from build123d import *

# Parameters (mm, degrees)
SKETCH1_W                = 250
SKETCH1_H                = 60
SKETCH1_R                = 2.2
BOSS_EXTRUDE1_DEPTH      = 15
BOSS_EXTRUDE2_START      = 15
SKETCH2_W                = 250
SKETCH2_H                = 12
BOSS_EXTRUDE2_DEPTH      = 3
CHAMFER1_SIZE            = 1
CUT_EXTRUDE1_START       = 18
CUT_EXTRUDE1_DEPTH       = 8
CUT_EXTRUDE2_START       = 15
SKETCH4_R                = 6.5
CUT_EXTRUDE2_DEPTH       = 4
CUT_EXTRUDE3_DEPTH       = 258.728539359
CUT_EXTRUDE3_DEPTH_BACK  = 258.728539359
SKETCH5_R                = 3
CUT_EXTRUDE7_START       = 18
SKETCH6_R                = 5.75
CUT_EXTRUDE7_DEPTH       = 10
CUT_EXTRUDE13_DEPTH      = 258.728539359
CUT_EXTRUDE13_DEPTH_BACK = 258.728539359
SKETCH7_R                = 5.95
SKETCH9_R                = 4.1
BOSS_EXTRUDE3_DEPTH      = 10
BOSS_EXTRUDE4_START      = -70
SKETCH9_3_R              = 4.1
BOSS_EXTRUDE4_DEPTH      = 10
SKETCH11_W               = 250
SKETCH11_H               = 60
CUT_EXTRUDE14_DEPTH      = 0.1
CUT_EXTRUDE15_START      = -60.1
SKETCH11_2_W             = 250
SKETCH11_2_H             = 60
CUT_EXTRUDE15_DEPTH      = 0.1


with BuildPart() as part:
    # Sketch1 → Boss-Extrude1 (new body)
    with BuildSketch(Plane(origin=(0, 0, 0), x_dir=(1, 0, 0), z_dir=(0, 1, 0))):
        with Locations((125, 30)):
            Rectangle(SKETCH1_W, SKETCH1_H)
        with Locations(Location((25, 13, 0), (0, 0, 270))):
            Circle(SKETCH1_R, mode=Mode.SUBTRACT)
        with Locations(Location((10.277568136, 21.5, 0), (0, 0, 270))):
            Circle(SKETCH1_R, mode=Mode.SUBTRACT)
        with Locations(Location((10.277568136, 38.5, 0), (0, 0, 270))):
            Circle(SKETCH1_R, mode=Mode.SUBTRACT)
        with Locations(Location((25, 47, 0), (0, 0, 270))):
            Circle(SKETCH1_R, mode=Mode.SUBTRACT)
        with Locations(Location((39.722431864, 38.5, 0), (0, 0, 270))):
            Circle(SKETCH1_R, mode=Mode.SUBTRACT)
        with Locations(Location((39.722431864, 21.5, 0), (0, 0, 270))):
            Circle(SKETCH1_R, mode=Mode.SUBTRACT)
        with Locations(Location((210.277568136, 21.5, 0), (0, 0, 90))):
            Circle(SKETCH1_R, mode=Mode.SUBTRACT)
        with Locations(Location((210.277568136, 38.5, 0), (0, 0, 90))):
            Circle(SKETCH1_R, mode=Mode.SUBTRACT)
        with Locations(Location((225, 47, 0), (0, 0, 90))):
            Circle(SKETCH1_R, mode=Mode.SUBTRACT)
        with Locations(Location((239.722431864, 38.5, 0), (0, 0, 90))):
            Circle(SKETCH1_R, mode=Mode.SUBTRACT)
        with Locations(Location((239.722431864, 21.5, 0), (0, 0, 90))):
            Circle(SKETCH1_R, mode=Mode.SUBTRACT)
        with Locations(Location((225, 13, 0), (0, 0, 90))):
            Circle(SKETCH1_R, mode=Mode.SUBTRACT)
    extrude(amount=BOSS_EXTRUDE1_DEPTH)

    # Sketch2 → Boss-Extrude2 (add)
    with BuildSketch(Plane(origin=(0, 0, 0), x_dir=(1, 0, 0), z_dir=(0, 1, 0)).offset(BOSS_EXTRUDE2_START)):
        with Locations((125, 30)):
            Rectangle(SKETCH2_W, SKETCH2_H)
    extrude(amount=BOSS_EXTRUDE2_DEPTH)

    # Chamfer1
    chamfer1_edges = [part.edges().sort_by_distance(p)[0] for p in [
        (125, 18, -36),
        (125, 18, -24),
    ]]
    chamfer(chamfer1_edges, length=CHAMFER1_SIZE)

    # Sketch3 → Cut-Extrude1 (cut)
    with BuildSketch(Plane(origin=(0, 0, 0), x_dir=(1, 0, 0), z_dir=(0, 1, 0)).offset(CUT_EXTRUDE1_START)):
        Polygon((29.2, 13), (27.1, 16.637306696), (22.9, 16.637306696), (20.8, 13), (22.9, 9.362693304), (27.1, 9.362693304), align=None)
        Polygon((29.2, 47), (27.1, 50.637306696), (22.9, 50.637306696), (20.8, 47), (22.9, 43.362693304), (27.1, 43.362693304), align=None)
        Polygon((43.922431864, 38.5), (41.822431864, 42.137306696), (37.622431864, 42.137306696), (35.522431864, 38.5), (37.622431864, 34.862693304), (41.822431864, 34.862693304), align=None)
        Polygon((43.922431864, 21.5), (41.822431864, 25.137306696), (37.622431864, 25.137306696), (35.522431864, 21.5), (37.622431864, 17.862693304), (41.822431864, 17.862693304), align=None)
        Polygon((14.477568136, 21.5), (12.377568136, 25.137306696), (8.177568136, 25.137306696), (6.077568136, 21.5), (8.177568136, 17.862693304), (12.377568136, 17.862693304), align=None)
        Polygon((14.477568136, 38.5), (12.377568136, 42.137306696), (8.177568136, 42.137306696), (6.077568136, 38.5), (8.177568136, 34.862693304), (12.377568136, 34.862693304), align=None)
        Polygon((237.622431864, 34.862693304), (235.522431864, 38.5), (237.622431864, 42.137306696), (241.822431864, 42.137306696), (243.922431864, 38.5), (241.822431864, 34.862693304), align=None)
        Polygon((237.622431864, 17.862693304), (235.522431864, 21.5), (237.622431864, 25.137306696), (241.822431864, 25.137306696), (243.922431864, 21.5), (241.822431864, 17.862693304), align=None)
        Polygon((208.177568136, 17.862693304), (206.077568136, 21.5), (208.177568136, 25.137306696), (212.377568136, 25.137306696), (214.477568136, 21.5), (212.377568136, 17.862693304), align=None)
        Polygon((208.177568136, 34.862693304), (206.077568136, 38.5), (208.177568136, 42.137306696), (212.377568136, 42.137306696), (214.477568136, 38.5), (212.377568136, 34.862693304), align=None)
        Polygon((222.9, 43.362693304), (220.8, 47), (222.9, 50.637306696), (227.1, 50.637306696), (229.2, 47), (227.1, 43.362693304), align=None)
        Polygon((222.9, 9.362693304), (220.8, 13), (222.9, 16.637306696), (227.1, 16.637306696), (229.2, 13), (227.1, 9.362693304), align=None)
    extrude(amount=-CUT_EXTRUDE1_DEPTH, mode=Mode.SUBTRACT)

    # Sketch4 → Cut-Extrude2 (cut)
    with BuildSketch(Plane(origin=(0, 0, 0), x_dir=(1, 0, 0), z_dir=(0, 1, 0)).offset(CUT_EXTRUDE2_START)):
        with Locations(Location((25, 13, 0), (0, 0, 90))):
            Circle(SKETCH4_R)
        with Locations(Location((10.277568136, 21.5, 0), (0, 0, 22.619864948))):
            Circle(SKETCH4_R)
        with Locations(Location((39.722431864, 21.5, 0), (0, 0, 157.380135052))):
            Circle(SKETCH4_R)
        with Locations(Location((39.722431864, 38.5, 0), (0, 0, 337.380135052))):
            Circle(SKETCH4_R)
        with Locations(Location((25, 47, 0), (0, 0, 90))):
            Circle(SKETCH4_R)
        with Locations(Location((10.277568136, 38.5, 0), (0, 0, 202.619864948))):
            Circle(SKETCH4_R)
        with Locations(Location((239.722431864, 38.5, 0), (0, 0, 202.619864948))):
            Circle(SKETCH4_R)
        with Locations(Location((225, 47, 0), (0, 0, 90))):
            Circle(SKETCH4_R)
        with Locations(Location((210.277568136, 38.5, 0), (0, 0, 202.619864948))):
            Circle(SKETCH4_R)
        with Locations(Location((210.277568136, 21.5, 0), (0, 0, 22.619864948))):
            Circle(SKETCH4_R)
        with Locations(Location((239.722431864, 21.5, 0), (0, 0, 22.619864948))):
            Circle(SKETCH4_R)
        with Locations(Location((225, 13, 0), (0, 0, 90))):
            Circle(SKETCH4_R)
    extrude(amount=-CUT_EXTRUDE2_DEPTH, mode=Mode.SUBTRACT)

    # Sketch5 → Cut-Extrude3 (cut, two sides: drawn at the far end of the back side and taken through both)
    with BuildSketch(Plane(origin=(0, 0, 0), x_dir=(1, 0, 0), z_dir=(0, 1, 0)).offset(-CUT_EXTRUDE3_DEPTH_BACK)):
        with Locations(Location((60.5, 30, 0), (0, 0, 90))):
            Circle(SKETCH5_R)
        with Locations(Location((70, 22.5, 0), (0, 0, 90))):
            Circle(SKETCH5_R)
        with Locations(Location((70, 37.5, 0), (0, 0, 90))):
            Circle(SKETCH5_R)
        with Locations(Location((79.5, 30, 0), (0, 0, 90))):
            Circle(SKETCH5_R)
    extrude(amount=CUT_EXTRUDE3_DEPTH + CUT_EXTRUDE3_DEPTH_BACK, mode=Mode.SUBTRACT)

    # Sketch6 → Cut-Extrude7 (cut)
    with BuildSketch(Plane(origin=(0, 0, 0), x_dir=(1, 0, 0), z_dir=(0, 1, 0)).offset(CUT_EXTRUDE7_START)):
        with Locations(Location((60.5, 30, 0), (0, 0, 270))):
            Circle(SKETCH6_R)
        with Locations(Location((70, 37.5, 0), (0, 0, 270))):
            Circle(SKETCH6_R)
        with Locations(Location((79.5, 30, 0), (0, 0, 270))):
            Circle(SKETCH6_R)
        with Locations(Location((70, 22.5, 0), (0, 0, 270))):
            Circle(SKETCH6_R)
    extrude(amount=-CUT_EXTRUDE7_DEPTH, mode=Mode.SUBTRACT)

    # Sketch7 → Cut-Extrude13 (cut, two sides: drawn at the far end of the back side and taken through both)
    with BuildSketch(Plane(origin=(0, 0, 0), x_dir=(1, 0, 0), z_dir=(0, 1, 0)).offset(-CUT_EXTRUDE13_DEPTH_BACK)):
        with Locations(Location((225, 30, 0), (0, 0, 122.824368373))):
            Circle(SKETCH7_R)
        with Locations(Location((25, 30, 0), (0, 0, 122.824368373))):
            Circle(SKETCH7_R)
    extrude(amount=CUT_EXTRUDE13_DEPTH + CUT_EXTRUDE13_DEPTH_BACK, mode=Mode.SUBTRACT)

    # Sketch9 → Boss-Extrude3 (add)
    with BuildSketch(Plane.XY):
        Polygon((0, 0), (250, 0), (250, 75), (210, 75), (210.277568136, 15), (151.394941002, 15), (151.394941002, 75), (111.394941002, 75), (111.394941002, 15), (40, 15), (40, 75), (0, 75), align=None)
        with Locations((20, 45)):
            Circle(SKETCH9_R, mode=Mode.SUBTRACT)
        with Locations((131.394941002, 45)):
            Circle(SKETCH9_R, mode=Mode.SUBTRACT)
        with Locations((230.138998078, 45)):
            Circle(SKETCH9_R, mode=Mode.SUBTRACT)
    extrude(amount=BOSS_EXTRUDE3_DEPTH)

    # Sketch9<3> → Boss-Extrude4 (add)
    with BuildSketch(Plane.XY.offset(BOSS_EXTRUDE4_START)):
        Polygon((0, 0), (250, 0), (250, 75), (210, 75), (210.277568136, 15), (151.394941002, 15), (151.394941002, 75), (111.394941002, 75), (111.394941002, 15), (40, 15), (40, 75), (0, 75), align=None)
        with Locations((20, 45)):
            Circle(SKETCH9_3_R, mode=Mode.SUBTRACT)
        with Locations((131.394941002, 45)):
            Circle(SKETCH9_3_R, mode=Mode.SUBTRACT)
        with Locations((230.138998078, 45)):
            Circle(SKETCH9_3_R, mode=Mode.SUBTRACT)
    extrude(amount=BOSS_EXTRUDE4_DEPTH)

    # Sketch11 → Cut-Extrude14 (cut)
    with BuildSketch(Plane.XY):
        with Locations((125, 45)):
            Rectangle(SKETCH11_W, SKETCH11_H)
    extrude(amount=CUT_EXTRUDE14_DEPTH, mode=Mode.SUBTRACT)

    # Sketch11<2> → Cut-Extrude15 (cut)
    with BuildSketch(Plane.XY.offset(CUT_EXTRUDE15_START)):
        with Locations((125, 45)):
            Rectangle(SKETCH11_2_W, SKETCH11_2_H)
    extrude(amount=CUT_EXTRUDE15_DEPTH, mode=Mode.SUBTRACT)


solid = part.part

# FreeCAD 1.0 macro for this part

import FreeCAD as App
import Part
import Sketcher

V = App.Vector
Q = App.Units.Quantity


def edges_at(feature, points):
    """Names of the edges that pass closest to the given points."""
    edges = feature.Shape.Edges
    near = lambda p: min(range(len(edges)), key=lambda i: edges[i].distToShape(Part.Vertex(*p))[0])
    return sorted({f"Edge{near(p) + 1}" for p in points})


def add_polygon(sketch, points):
    """Adds a closed chain of lines whose ends are joined by coincident constraints."""
    first, n = sketch.GeometryCount, len(points)
    for a, b in zip(points, points[1:] + points[:1]):
        sketch.addGeometry(Part.LineSegment(App.Vector(*a, 0), App.Vector(*b, 0)), False)
    for i in range(n):
        sketch.addConstraint(Sketcher.Constraint("Coincident", first + i, 2, first + (i + 1) % n, 1))

doc = App.newDocument("Part")
body = doc.addObject("PartDesign::Body", "Body")

# Sketch on XZ plane
sketch1 = body.newObject("Sketcher::SketchObject", "Sketch")
sketch1.AttachmentSupport = (doc.getObject("XZ_Plane"), [""])
sketch1.MapMode = "FlatFace"
add_polygon(sketch1, [(0, -60), (0, 0), (250, 0), (250, -60)])  # lines 0-3
sketch1.addGeometry(Part.Circle(V(25, -13, 0), V(0, 0, 1), 2.2), False)  # 4
sketch1.addGeometry(Part.Circle(V(10.3, -21.5, 0), V(0, 0, 1), 2.2), False)  # 5
sketch1.addGeometry(Part.Circle(V(39.7, -21.5, 0), V(0, 0, 1), 2.2), False)  # 6
sketch1.addGeometry(Part.Circle(V(225, -13, 0), V(0, 0, 1), 2.2), False)  # 7
sketch1.addGeometry(Part.Circle(V(210.3, -21.5, 0), V(0, 0, 1), 2.2), False)  # 8
sketch1.addGeometry(Part.Circle(V(239.7, -21.5, 0), V(0, 0, 1), 2.2), False)  # 9
sketch1.addGeometry(Part.Circle(V(10.3, -38.5, 0), V(0, 0, 1), 2.2), False)  # 10
sketch1.addGeometry(Part.Circle(V(39.7, -38.5, 0), V(0, 0, 1), 2.2), False)  # 11
sketch1.addGeometry(Part.Circle(V(25, -47, 0), V(0, 0, 1), 2.2), False)  # 12
sketch1.addGeometry(Part.Circle(V(210.3, -38.5, 0), V(0, 0, 1), 2.2), False)  # 13
sketch1.addGeometry(Part.Circle(V(239.7, -38.5, 0), V(0, 0, 1), 2.2), False)  # 14
sketch1.addGeometry(Part.Circle(V(225, -47, 0), V(0, 0, 1), 2.2), False)  # 15
sketch1.addConstraint([
    Sketcher.Constraint("Vertical", 0),
    Sketcher.Constraint("Horizontal", 1),
    Sketcher.Constraint("Vertical", 2),
    Sketcher.Constraint("Horizontal", 3),
    Sketcher.Constraint("Coincident", 0, 2, -1, 1),
    Sketcher.Constraint("Equal", 4, 5),
    Sketcher.Constraint("Equal", 5, 6),
    Sketcher.Constraint("Equal", 6, 7),
    Sketcher.Constraint("Equal", 7, 8),
    Sketcher.Constraint("Equal", 8, 9),
    Sketcher.Constraint("Equal", 9, 10),
    Sketcher.Constraint("Equal", 10, 11),
    Sketcher.Constraint("Equal", 11, 12),
    Sketcher.Constraint("Equal", 12, 13),
    Sketcher.Constraint("Equal", 13, 14),
    Sketcher.Constraint("Equal", 14, 15),
    Sketcher.Constraint("Horizontal", 5, 3, 6, 3),
    Sketcher.Constraint("Horizontal", 4, 3, 7, 3),
    Sketcher.Constraint("Horizontal", 6, 3, 8, 3),
    Sketcher.Constraint("Horizontal", 8, 3, 9, 3),
    Sketcher.Constraint("Horizontal", 10, 3, 11, 3),
    Sketcher.Constraint("Horizontal", 11, 3, 13, 3),
    Sketcher.Constraint("Horizontal", 13, 3, 14, 3),
    Sketcher.Constraint("Horizontal", 12, 3, 15, 3),
    Sketcher.Constraint("Vertical", 5, 3, 10, 3),
    Sketcher.Constraint("Vertical", 6, 3, 11, 3),
    Sketcher.Constraint("Vertical", 4, 3, 12, 3),
    Sketcher.Constraint("Vertical", 8, 3, 13, 3),
    Sketcher.Constraint("Vertical", 9, 3, 14, 3),
    Sketcher.Constraint("Vertical", 7, 3, 15, 3),
    Sketcher.Constraint("Diameter", 4, Q("4.4 mm")),
    Sketcher.Constraint("DistanceX", 1, 1, 1, 2, Q("250 mm")),
    Sketcher.Constraint("DistanceY", 0, 1, 0, 2, Q("60 mm")),
    Sketcher.Constraint("DistanceX", -1, 1, 4, 3, Q("25 mm")),
    Sketcher.Constraint("DistanceY", 4, 3, -1, 1, Q("13 mm")),
    Sketcher.Constraint("DistanceX", -1, 1, 7, 3, Q("225 mm")),
    Sketcher.Constraint("DistanceY", 12, 3, -1, 1, Q("47 mm")),
    Sketcher.Constraint("DistanceX", 5, 3, 8, 3, Q("200 mm")),
    Sketcher.Constraint("DistanceX", 6, 3, 9, 3, Q("200 mm")),
    Sketcher.Constraint("DistanceY", 10, 3, 5, 3, Q("17 mm")),
    Sketcher.Constraint("DistanceY", 5, 3, -1, 1, Q("21.5 mm")),
    Sketcher.Constraint("DistanceX", -1, 1, 5, 3, Q("10.277568 mm")),
    Sketcher.Constraint("DistanceX", -1, 1, 6, 3, Q("39.722432 mm")),
])
pad1 = body.newObject("PartDesign::Pad", "Pad")
pad1.Profile = sketch1
pad1.Length = 15
pad1.Reversed = True

# Sketch on XZ plane
sketch2 = body.newObject("Sketcher::SketchObject", "Sketch001")
sketch2.AttachmentSupport = (doc.getObject("XZ_Plane"), [""])
sketch2.MapMode = "FlatFace"
sketch2.AttachmentOffset = App.Placement(V(0, 0, -15), App.Rotation())
add_polygon(sketch2, [(0, -36), (0, -24), (250, -24), (250, -36)])  # lines 0-3
sketch2.addConstraint([
    Sketcher.Constraint("Vertical", 0),
    Sketcher.Constraint("Horizontal", 1),
    Sketcher.Constraint("Vertical", 2),
    Sketcher.Constraint("Horizontal", 3),
    Sketcher.Constraint("PointOnObject", 0, 2, -2),
    Sketcher.Constraint("DistanceX", 1, 1, 1, 2, Q("250 mm")),
    Sketcher.Constraint("DistanceY", 0, 1, 0, 2, Q("12 mm")),
    Sketcher.Constraint("DistanceY", 0, 2, -1, 1, Q("24 mm")),
])
pad2 = body.newObject("PartDesign::Pad", "Pad001")
pad2.Profile = sketch2
pad2.Length = 3
pad2.Reversed = True
doc.recompute()

chamfer = body.newObject("PartDesign::Chamfer", "Chamfer")
chamfer.Base = (pad2, edges_at(pad2, [(125, 18, -36), (125, 18, -24)]))
chamfer.Size = 1

# Sketch on XZ plane
sketch3 = body.newObject("Sketcher::SketchObject", "Sketch002")
sketch3.AttachmentSupport = (doc.getObject("XZ_Plane"), [""])
sketch3.MapMode = "FlatFace"
sketch3.AttachmentOffset = App.Placement(V(0, 0, -18), App.Rotation())
add_polygon(sketch3, [(29.2, -13), (27.1, -16.6), (22.9, -16.6), (20.8, -13), (22.9, -9.4), (27.1, -9.4)])  # lines 0-5
add_polygon(sketch3, [(29.2, -47), (27.1, -50.6), (22.9, -50.6), (20.8, -47), (22.9, -43.4), (27.1, -43.4)])  # lines 6-11
add_polygon(sketch3, [(43.9, -38.5), (41.8, -42.1), (37.6, -42.1), (35.5, -38.5), (37.6, -34.9), (41.8, -34.9)])  # lines 12-17
add_polygon(sketch3, [(43.9, -21.5), (41.8, -25.1), (37.6, -25.1), (35.5, -21.5), (37.6, -17.9), (41.8, -17.9)])  # lines 18-23
add_polygon(sketch3, [(14.5, -21.5), (12.4, -25.1), (8.2, -25.1), (6.1, -21.5), (8.2, -17.9), (12.4, -17.9)])  # lines 24-29
add_polygon(sketch3, [(14.5, -38.5), (12.4, -42.1), (8.2, -42.1), (6.1, -38.5), (8.2, -34.9), (12.4, -34.9)])  # lines 30-35
add_polygon(sketch3, [(235.5, -38.5), (237.6, -34.9), (241.8, -34.9), (243.9, -38.5), (241.8, -42.1), (237.6, -42.1)])  # lines 36-41
add_polygon(sketch3, [(235.5, -21.5), (237.6, -17.9), (241.8, -17.9), (243.9, -21.5), (241.8, -25.1), (237.6, -25.1)])  # lines 42-47
add_polygon(sketch3, [(206.1, -21.5), (208.2, -17.9), (212.4, -17.9), (214.5, -21.5), (212.4, -25.1), (208.2, -25.1)])  # lines 48-53
add_polygon(sketch3, [(206.1, -38.5), (208.2, -34.9), (212.4, -34.9), (214.5, -38.5), (212.4, -42.1), (208.2, -42.1)])  # lines 54-59
add_polygon(sketch3, [(220.8, -47), (222.9, -43.4), (227.1, -43.4), (229.2, -47), (227.1, -50.6), (222.9, -50.6)])  # lines 60-65
add_polygon(sketch3, [(220.8, -13), (222.9, -9.4), (227.1, -9.4), (229.2, -13), (227.1, -16.6), (222.9, -16.6)])  # lines 66-71
sketch3.addConstraint([
    Sketcher.Constraint("Horizontal", 1),
    Sketcher.Constraint("Horizontal", 4),
    Sketcher.Constraint("Horizontal", 7),
    Sketcher.Constraint("Horizontal", 10),
    Sketcher.Constraint("Horizontal", 13),
    Sketcher.Constraint("Horizontal", 16),
    Sketcher.Constraint("Horizontal", 19),
    Sketcher.Constraint("Horizontal", 22),
    Sketcher.Constraint("Horizontal", 25),
    Sketcher.Constraint("Horizontal", 28),
    Sketcher.Constraint("Horizontal", 31),
    Sketcher.Constraint("Horizontal", 34),
    Sketcher.Constraint("Horizontal", 37),
    Sketcher.Constraint("Horizontal", 40),
    Sketcher.Constraint("Horizontal", 43),
    Sketcher.Constraint("Horizontal", 46),
    Sketcher.Constraint("Horizontal", 49),
    Sketcher.Constraint("Horizontal", 52),
    Sketcher.Constraint("Horizontal", 55),
    Sketcher.Constraint("Horizontal", 58),
    Sketcher.Constraint("Horizontal", 61),
    Sketcher.Constraint("Horizontal", 64),
    Sketcher.Constraint("Horizontal", 67),
    Sketcher.Constraint("Horizontal", 70),
    Sketcher.Constraint("Parallel", 0, 3),
    Sketcher.Constraint("Parallel", 2, 5),
    Sketcher.Constraint("Parallel", 3, 6),
    Sketcher.Constraint("Parallel", 5, 8),
    Sketcher.Constraint("Parallel", 6, 9),
    Sketcher.Constraint("Parallel", 8, 11),
    Sketcher.Constraint("Parallel", 9, 12),
    Sketcher.Constraint("Parallel", 11, 14),
    Sketcher.Constraint("Parallel", 12, 15),
    Sketcher.Constraint("Parallel", 14, 17),
    Sketcher.Constraint("Parallel", 15, 18),
    Sketcher.Constraint("Parallel", 17, 20),
    Sketcher.Constraint("Parallel", 18, 21),
    Sketcher.Constraint("Parallel", 20, 23),
    Sketcher.Constraint("Parallel", 21, 24),
    Sketcher.Constraint("Parallel", 23, 26),
    Sketcher.Constraint("Parallel", 24, 27),
    Sketcher.Constraint("Parallel", 26, 29),
    Sketcher.Constraint("Parallel", 27, 30),
    Sketcher.Constraint("Parallel", 29, 32),
    Sketcher.Constraint("Parallel", 30, 33),
    Sketcher.Constraint("Parallel", 32, 35),
    Sketcher.Constraint("Parallel", 33, 36),
    Sketcher.Constraint("Parallel", 35, 38),
    Sketcher.Constraint("Parallel", 36, 39),
    Sketcher.Constraint("Parallel", 38, 41),
    Sketcher.Constraint("Parallel", 39, 42),
    Sketcher.Constraint("Parallel", 41, 44),
    Sketcher.Constraint("Parallel", 42, 45),
    Sketcher.Constraint("Parallel", 44, 47),
    Sketcher.Constraint("Parallel", 45, 48),
    Sketcher.Constraint("Parallel", 47, 50),
    Sketcher.Constraint("Parallel", 48, 51),
    Sketcher.Constraint("Parallel", 50, 53),
    Sketcher.Constraint("Parallel", 51, 54),
    Sketcher.Constraint("Parallel", 53, 56),
    Sketcher.Constraint("Parallel", 54, 57),
    Sketcher.Constraint("Parallel", 56, 59),
    Sketcher.Constraint("Parallel", 57, 60),
    Sketcher.Constraint("Parallel", 59, 62),
    Sketcher.Constraint("Parallel", 60, 63),
    Sketcher.Constraint("Parallel", 62, 65),
    Sketcher.Constraint("Parallel", 63, 66),
    Sketcher.Constraint("Parallel", 65, 68),
    Sketcher.Constraint("Parallel", 66, 69),
    Sketcher.Constraint("Parallel", 68, 71),
    Sketcher.Constraint("Horizontal", 2, 2, 5, 2),
    Sketcher.Constraint("Horizontal", 8, 2, 11, 2),
    Sketcher.Constraint("Horizontal", 14, 2, 17, 2),
    Sketcher.Constraint("Horizontal", 20, 2, 23, 2),
    Sketcher.Constraint("Horizontal", 19, 2, 24, 2),
    Sketcher.Constraint("Horizontal", 23, 2, 26, 2),
    Sketcher.Constraint("Horizontal", 22, 2, 27, 2),
    Sketcher.Constraint("Horizontal", 26, 2, 29, 2),
    Sketcher.Constraint("Horizontal", 13, 2, 30, 2),
    Sketcher.Constraint("Horizontal", 17, 2, 32, 2),
    Sketcher.Constraint("Horizontal", 16, 2, 33, 2),
    Sketcher.Constraint("Horizontal", 32, 2, 35, 2),
    Sketcher.Constraint("Horizontal", 34, 2, 36, 2),
    Sketcher.Constraint("Horizontal", 35, 2, 38, 2),
    Sketcher.Constraint("Horizontal", 31, 2, 39, 2),
    Sketcher.Constraint("Horizontal", 38, 2, 41, 2),
    Sketcher.Constraint("Horizontal", 28, 2, 42, 2),
    Sketcher.Constraint("Horizontal", 29, 2, 44, 2),
    Sketcher.Constraint("Horizontal", 25, 2, 45, 2),
    Sketcher.Constraint("Horizontal", 44, 2, 47, 2),
    Sketcher.Constraint("Horizontal", 43, 2, 48, 2),
    Sketcher.Constraint("Horizontal", 47, 2, 50, 2),
    Sketcher.Constraint("Horizontal", 46, 2, 51, 2),
    Sketcher.Constraint("Horizontal", 50, 2, 53, 2),
    Sketcher.Constraint("Horizontal", 37, 2, 54, 2),
    Sketcher.Constraint("Horizontal", 41, 2, 56, 2),
    Sketcher.Constraint("Horizontal", 40, 2, 57, 2),
    Sketcher.Constraint("Horizontal", 56, 2, 59, 2),
    Sketcher.Constraint("Horizontal", 10, 2, 60, 2),
    Sketcher.Constraint("Horizontal", 11, 2, 62, 2),
    Sketcher.Constraint("Horizontal", 7, 2, 63, 2),
    Sketcher.Constraint("Horizontal", 62, 2, 65, 2),
    Sketcher.Constraint("Horizontal", 4, 2, 66, 2),
    Sketcher.Constraint("Horizontal", 5, 2, 68, 2),
    Sketcher.Constraint("Horizontal", 1, 2, 69, 2),
    Sketcher.Constraint("Horizontal", 68, 2, 71, 2),
    Sketcher.Constraint("Vertical", 1, 2, 3, 2),
    Sketcher.Constraint("Vertical", 0, 2, 4, 2),
    Sketcher.Constraint("Vertical", 4, 2, 6, 2),
    Sketcher.Constraint("Vertical", 3, 2, 7, 2),
    Sketcher.Constraint("Vertical", 2, 2, 8, 2),
    Sketcher.Constraint("Vertical", 7, 2, 9, 2),
    Sketcher.Constraint("Vertical", 13, 2, 15, 2),
    Sketcher.Constraint("Vertical", 16, 2, 18, 2),
    Sketcher.Constraint("Vertical", 15, 2, 19, 2),
    Sketcher.Constraint("Vertical", 14, 2, 20, 2),
    Sketcher.Constraint("Vertical", 19, 2, 21, 2),
    Sketcher.Constraint("Vertical", 28, 2, 30, 2),
    Sketcher.Constraint("Vertical", 27, 2, 31, 2),
    Sketcher.Constraint("Vertical", 40, 2, 42, 2),
    Sketcher.Constraint("Vertical", 39, 2, 43, 2),
    Sketcher.Constraint("Vertical", 52, 2, 54, 2),
    Sketcher.Constraint("Vertical", 51, 2, 55, 2),
    Sketcher.Constraint("Vertical", 64, 2, 66, 2),
    Sketcher.Constraint("Vertical", 63, 2, 67, 2),
    Sketcher.Constraint("Equal", 10, 13),
    Sketcher.Constraint("Equal", 22, 25),
    Sketcher.Constraint("Equal", 34, 37),
    Sketcher.Constraint("Equal", 46, 49),
    Sketcher.Constraint("Equal", 58, 61),
    Sketcher.Constraint("Equal", 11, 12),
    Sketcher.Constraint("Angle", 0, Q("-120 deg")),
    Sketcher.Constraint("DistanceX", 1, 2, 1, 1, Q("4.2 mm")),
    Sketcher.Constraint("DistanceY", 2, 2, -1, 1, Q("13 mm")),
    Sketcher.Constraint("DistanceY", 8, 2, -1, 1, Q("47 mm")),
    Sketcher.Constraint("Distance", 0, Q("4.2 mm")),
    Sketcher.Constraint("DistanceX", -1, 1, 0, 2, Q("27.1 mm")),
    Sketcher.Constraint("DistanceY", 14, 2, -1, 1, Q("38.5 mm")),
    Sketcher.Constraint("DistanceY", 20, 2, -1, 1, Q("21.5 mm")),
    Sketcher.Constraint("DistanceX", -1, 1, 60, 2, Q("222.9 mm")),
    Sketcher.Constraint("DistanceX", -1, 1, 12, 2, Q("41.822432 mm")),
    Sketcher.Constraint("DistanceX", -1, 1, 24, 2, Q("12.377568 mm")),
    Sketcher.Constraint("DistanceX", -1, 1, 36, 2, Q("237.622432 mm")),
    Sketcher.Constraint("DistanceX", -1, 1, 48, 2, Q("208.177568 mm")),
])
pocket1 = body.newObject("PartDesign::Pocket", "Pocket")
pocket1.Profile = sketch3
pocket1.Length = 8
pocket1.Reversed = True

# Sketch on XZ plane
sketch4 = body.newObject("Sketcher::SketchObject", "Sketch003")
sketch4.AttachmentSupport = (doc.getObject("XZ_Plane"), [""])
sketch4.MapMode = "FlatFace"
sketch4.AttachmentOffset = App.Placement(V(0, 0, -15), App.Rotation())
sketch4.addGeometry([
    Part.Circle(V(25, -13, 0), V(0, 0, 1), 6),  # 0
    Part.Circle(V(10, -22, 0), V(0, 0, 1), 6),  # 1
    Part.Circle(V(40, -22, 0), V(0, 0, 1), 6),  # 2
    Part.Circle(V(40, -38, 0), V(0, 0, 1), 6),  # 3
    Part.Circle(V(25, -47, 0), V(0, 0, 1), 6),  # 4
    Part.Circle(V(10, -38, 0), V(0, 0, 1), 6),  # 5
    Part.Circle(V(240, -38, 0), V(0, 0, 1), 6),  # 6
    Part.Circle(V(225, -47, 0), V(0, 0, 1), 6),  # 7
    Part.Circle(V(210, -38, 0), V(0, 0, 1), 6),  # 8
    Part.Circle(V(210, -22, 0), V(0, 0, 1), 6),  # 9
    Part.Circle(V(240, -22, 0), V(0, 0, 1), 6),  # 10
    Part.Circle(V(225, -13, 0), V(0, 0, 1), 6),  # 11
], False)
sketch4.addConstraint([
    Sketcher.Constraint("Equal", 0, 1),
    Sketcher.Constraint("Equal", 1, 2),
    Sketcher.Constraint("Equal", 2, 3),
    Sketcher.Constraint("Equal", 3, 4),
    Sketcher.Constraint("Equal", 4, 5),
    Sketcher.Constraint("Equal", 5, 6),
    Sketcher.Constraint("Equal", 6, 7),
    Sketcher.Constraint("Equal", 7, 8),
    Sketcher.Constraint("Equal", 8, 9),
    Sketcher.Constraint("Equal", 9, 10),
    Sketcher.Constraint("Equal", 10, 11),
    Sketcher.Constraint("Horizontal", 1, 3, 2, 3),
    Sketcher.Constraint("Horizontal", 3, 3, 5, 3),
    Sketcher.Constraint("Horizontal", 5, 3, 6, 3),
    Sketcher.Constraint("Horizontal", 4, 3, 7, 3),
    Sketcher.Constraint("Horizontal", 6, 3, 8, 3),
    Sketcher.Constraint("Horizontal", 2, 3, 9, 3),
    Sketcher.Constraint("Horizontal", 9, 3, 10, 3),
    Sketcher.Constraint("Horizontal", 0, 3, 11, 3),
    Sketcher.Constraint("Vertical", 2, 3, 3, 3),
    Sketcher.Constraint("Vertical", 0, 3, 4, 3),
    Sketcher.Constraint("Vertical", 1, 3, 5, 3),
    Sketcher.Constraint("Vertical", 8, 3, 9, 3),
    Sketcher.Constraint("Vertical", 6, 3, 10, 3),
    Sketcher.Constraint("Vertical", 7, 3, 11, 3),
    Sketcher.Constraint("Diameter", 0, Q("13 mm")),
    Sketcher.Constraint("DistanceX", -1, 1, 0, 3, Q("25 mm")),
    Sketcher.Constraint("DistanceY", 0, 3, -1, 1, Q("13 mm")),
    Sketcher.Constraint("DistanceY", 4, 3, -1, 1, Q("47 mm")),
    Sketcher.Constraint("DistanceX", -1, 1, 7, 3, Q("225 mm")),
    Sketcher.Constraint("DistanceY", 3, 3, 2, 3, Q("17 mm")),
    Sketcher.Constraint("DistanceX", 3, 3, 6, 3, Q("200 mm")),
    Sketcher.Constraint("DistanceY", 1, 3, -1, 1, Q("21.5 mm")),
    Sketcher.Constraint("DistanceX", -1, 1, 1, 3, Q("10.277568 mm")),
    Sketcher.Constraint("DistanceX", -1, 1, 2, 3, Q("39.722432 mm")),
    Sketcher.Constraint("DistanceX", -1, 1, 8, 3, Q("210.277568 mm")),
])
pocket2 = body.newObject("PartDesign::Pocket", "Pocket001")
pocket2.Profile = sketch4
pocket2.Length = 4
pocket2.Reversed = True

# Sketch on XZ plane
sketch5 = body.newObject("Sketcher::SketchObject", "Sketch004")
sketch5.AttachmentSupport = (doc.getObject("XZ_Plane"), [""])
sketch5.MapMode = "FlatFace"
sketch5.addGeometry([
    Part.Circle(V(60.5, -30, 0), V(0, 0, 1), 3),
    Part.Circle(V(70, -22.5, 0), V(0, 0, 1), 3),
    Part.Circle(V(70, -37.5, 0), V(0, 0, 1), 3),
    Part.Circle(V(79.5, -30, 0), V(0, 0, 1), 3),
], False)
sketch5.addConstraint([
    Sketcher.Constraint("Equal", 0, 1),
    Sketcher.Constraint("Equal", 1, 2),
    Sketcher.Constraint("Equal", 2, 3),
    Sketcher.Constraint("Horizontal", 0, 3, 3, 3),
    Sketcher.Constraint("Vertical", 1, 3, 2, 3),
    Sketcher.Constraint("Diameter", 0, Q("6 mm")),
    Sketcher.Constraint("DistanceY", 0, 3, -1, 1, Q("30 mm")),
    Sketcher.Constraint("DistanceX", -1, 1, 1, 3, Q("70 mm")),
    Sketcher.Constraint("DistanceY", 2, 3, 1, 3, Q("15 mm")),
    Sketcher.Constraint("DistanceX", 0, 3, 3, 3, Q("19 mm")),
    Sketcher.Constraint("DistanceX", -1, 1, 0, 3, Q("60.5 mm")),
    Sketcher.Constraint("DistanceY", 1, 3, -1, 1, Q("22.5 mm")),
])
pocket3 = body.newObject("PartDesign::Pocket", "Pocket002")
pocket3.Profile = sketch5
pocket3.Type = "ThroughAll"
pocket3.Midplane = True

# Sketch on XZ plane
sketch6 = body.newObject("Sketcher::SketchObject", "Sketch005")
sketch6.AttachmentSupport = (doc.getObject("XZ_Plane"), [""])
sketch6.MapMode = "FlatFace"
sketch6.AttachmentOffset = App.Placement(V(0, 0, -18), App.Rotation())
sketch6.addGeometry([
    Part.Circle(V(60, -30, 0), V(0, 0, 1), 6),
    Part.Circle(V(70, -38, 0), V(0, 0, 1), 6),
    Part.Circle(V(80, -30, 0), V(0, 0, 1), 6),
    Part.Circle(V(70, -22, 0), V(0, 0, 1), 6),
], False)
sketch6.addConstraint([
    Sketcher.Constraint("Equal", 0, 1),
    Sketcher.Constraint("Equal", 1, 2),
    Sketcher.Constraint("Equal", 2, 3),
    Sketcher.Constraint("Horizontal", 0, 3, 2, 3),
    Sketcher.Constraint("Vertical", 1, 3, 3, 3),
    Sketcher.Constraint("Diameter", 0, Q("11.5 mm")),
    Sketcher.Constraint("DistanceY", 0, 3, -1, 1, Q("30 mm")),
    Sketcher.Constraint("DistanceX", -1, 1, 1, 3, Q("70 mm")),
    Sketcher.Constraint("DistanceX", 0, 3, 2, 3, Q("19 mm")),
    Sketcher.Constraint("DistanceY", 1, 3, 3, 3, Q("15 mm")),
    Sketcher.Constraint("DistanceX", -1, 1, 0, 3, Q("60.5 mm")),
    Sketcher.Constraint("DistanceY", 1, 3, -1, 1, Q("37.5 mm")),
])
pocket4 = body.newObject("PartDesign::Pocket", "Pocket003")
pocket4.Profile = sketch6
pocket4.Length = 10
pocket4.Reversed = True

# Sketch on XZ plane
sketch7 = body.newObject("Sketcher::SketchObject", "Sketch006")
sketch7.AttachmentSupport = (doc.getObject("XZ_Plane"), [""])
sketch7.MapMode = "FlatFace"
sketch7.addGeometry([
    Part.Circle(V(225, -30, 0), V(0, 0, 1), 6),
    Part.Circle(V(25, -30, 0), V(0, 0, 1), 6),
], False)
sketch7.addConstraint([
    Sketcher.Constraint("Equal", 0, 1),
    Sketcher.Constraint("Horizontal", 0, 3, 1, 3),
    Sketcher.Constraint("Diameter", 0, Q("11.9 mm")),
    Sketcher.Constraint("DistanceX", -1, 1, 0, 3, Q("225 mm")),
    Sketcher.Constraint("DistanceY", 0, 3, -1, 1, Q("30 mm")),
    Sketcher.Constraint("DistanceX", -1, 1, 1, 3, Q("25 mm")),
])
pocket5 = body.newObject("PartDesign::Pocket", "Pocket004")
pocket5.Profile = sketch7
pocket5.Type = "ThroughAll"
pocket5.Midplane = True

# Sketch on XY plane
sketch8 = body.newObject("Sketcher::SketchObject", "Sketch007")
sketch8.AttachmentSupport = (doc.getObject("XY_Plane"), [""])
sketch8.MapMode = "FlatFace"
add_polygon(sketch8, [(0, 0), (250, 0), (250, 75), (210, 75), (210.3, 15), (151.4, 15), (151.4, 75), (111.4, 75), (111.4, 15), (40, 15), (40, 75), (0, 75)])  # lines 0-11
sketch8.addGeometry(Part.Circle(V(20, 45, 0), V(0, 0, 1), 4.1), False)  # 12
sketch8.addGeometry(Part.Circle(V(131.4, 45, 0), V(0, 0, 1), 4.1), False)  # 13
sketch8.addGeometry(Part.Circle(V(230.1, 45, 0), V(0, 0, 1), 4.1), False)  # 14
sketch8.addConstraint([
    Sketcher.Constraint("Horizontal", 0),
    Sketcher.Constraint("Vertical", 1),
    Sketcher.Constraint("Horizontal", 2),
    Sketcher.Constraint("Horizontal", 4),
    Sketcher.Constraint("Vertical", 5),
    Sketcher.Constraint("Horizontal", 6),
    Sketcher.Constraint("Vertical", 7),
    Sketcher.Constraint("Horizontal", 8),
    Sketcher.Constraint("Vertical", 9),
    Sketcher.Constraint("Horizontal", 10),
    Sketcher.Constraint("Vertical", 11),
    Sketcher.Constraint("Coincident", 11, 2, -1, 1),
    Sketcher.Constraint("Equal", 12, 13),
    Sketcher.Constraint("Equal", 13, 14),
    Sketcher.Constraint("Horizontal", 12, 3, 13, 3),
    Sketcher.Constraint("Horizontal", 13, 3, 14, 3),
    Sketcher.Constraint("Horizontal", 2, 2, 5, 2),
    Sketcher.Constraint("Horizontal", 4, 2, 7, 2),
    Sketcher.Constraint("Horizontal", 6, 2, 9, 2),
    Sketcher.Constraint("Equal", 2, 6),
    Sketcher.Constraint("Equal", 6, 10),
    Sketcher.Constraint("Diameter", 12, Q("8.2 mm")),
    Sketcher.Constraint("DistanceX", 0, 1, 0, 2, Q("250 mm")),
    Sketcher.Constraint("DistanceX", 2, 2, 2, 1, Q("40 mm")),
    Sketcher.Constraint("DistanceY", 1, 1, 1, 2, Q("75 mm")),
    Sketcher.Constraint("DistanceY", 5, 1, 5, 2, Q("60 mm")),
    Sketcher.Constraint("DistanceX", -1, 1, 12, 3, Q("20 mm")),
    Sketcher.Constraint("DistanceY", -1, 1, 12, 3, Q("45 mm")),
    Sketcher.Constraint("DistanceX", 13, 3, 4, 2, Q("20 mm")),
    Sketcher.Constraint("DistanceX", -1, 1, 14, 3, Q("230.138998 mm")),
    Sketcher.Constraint("DistanceX", 8, 2, 8, 1, Q("71.394941 mm")),
    Sketcher.Constraint("DistanceX", 4, 2, 4, 1, Q("58.882627 mm")),
])
pad3 = body.newObject("PartDesign::Pad", "Pad002")
pad3.Profile = sketch8
pad3.Length = 10

# Sketch on XY plane
sketch9 = body.newObject("Sketcher::SketchObject", "Sketch008")
sketch9.AttachmentSupport = (doc.getObject("XY_Plane"), [""])
sketch9.MapMode = "FlatFace"
sketch9.AttachmentOffset = App.Placement(V(0, 0, -70), App.Rotation())
add_polygon(sketch9, [(0, 0), (250, 0), (250, 75), (210, 75), (210.3, 15), (151.4, 15), (151.4, 75), (111.4, 75), (111.4, 15), (40, 15), (40, 75), (0, 75)])  # lines 0-11
sketch9.addGeometry(Part.Circle(V(20, 45, 0), V(0, 0, 1), 4.1), False)  # 12
sketch9.addGeometry(Part.Circle(V(131.4, 45, 0), V(0, 0, 1), 4.1), False)  # 13
sketch9.addGeometry(Part.Circle(V(230.1, 45, 0), V(0, 0, 1), 4.1), False)  # 14
sketch9.addConstraint([
    Sketcher.Constraint("Horizontal", 0),
    Sketcher.Constraint("Vertical", 1),
    Sketcher.Constraint("Horizontal", 2),
    Sketcher.Constraint("Horizontal", 4),
    Sketcher.Constraint("Vertical", 5),
    Sketcher.Constraint("Horizontal", 6),
    Sketcher.Constraint("Vertical", 7),
    Sketcher.Constraint("Horizontal", 8),
    Sketcher.Constraint("Vertical", 9),
    Sketcher.Constraint("Horizontal", 10),
    Sketcher.Constraint("Vertical", 11),
    Sketcher.Constraint("Coincident", 11, 2, -1, 1),
    Sketcher.Constraint("Equal", 12, 13),
    Sketcher.Constraint("Equal", 13, 14),
    Sketcher.Constraint("Horizontal", 12, 3, 13, 3),
    Sketcher.Constraint("Horizontal", 13, 3, 14, 3),
    Sketcher.Constraint("Horizontal", 2, 2, 5, 2),
    Sketcher.Constraint("Horizontal", 4, 2, 7, 2),
    Sketcher.Constraint("Horizontal", 6, 2, 9, 2),
    Sketcher.Constraint("Equal", 2, 6),
    Sketcher.Constraint("Equal", 6, 10),
    Sketcher.Constraint("Diameter", 12, Q("8.2 mm")),
    Sketcher.Constraint("DistanceX", 0, 1, 0, 2, Q("250 mm")),
    Sketcher.Constraint("DistanceX", 2, 2, 2, 1, Q("40 mm")),
    Sketcher.Constraint("DistanceY", 1, 1, 1, 2, Q("75 mm")),
    Sketcher.Constraint("DistanceY", 5, 1, 5, 2, Q("60 mm")),
    Sketcher.Constraint("DistanceX", -1, 1, 12, 3, Q("20 mm")),
    Sketcher.Constraint("DistanceY", -1, 1, 12, 3, Q("45 mm")),
    Sketcher.Constraint("DistanceX", 13, 3, 4, 2, Q("20 mm")),
    Sketcher.Constraint("DistanceX", -1, 1, 14, 3, Q("230.138998 mm")),
    Sketcher.Constraint("DistanceX", 8, 2, 8, 1, Q("71.394941 mm")),
    Sketcher.Constraint("DistanceX", 4, 2, 4, 1, Q("58.882627 mm")),
])
pad4 = body.newObject("PartDesign::Pad", "Pad003")
pad4.Profile = sketch9
pad4.Length = 10

# Sketch on XY plane
sketch10 = body.newObject("Sketcher::SketchObject", "Sketch009")
sketch10.AttachmentSupport = (doc.getObject("XY_Plane"), [""])
sketch10.MapMode = "FlatFace"
add_polygon(sketch10, [(0, 75), (0, 15), (250, 15), (250, 75)])  # lines 0-3
sketch10.addConstraint([
    Sketcher.Constraint("Vertical", 0),
    Sketcher.Constraint("Horizontal", 1),
    Sketcher.Constraint("Vertical", 2),
    Sketcher.Constraint("Horizontal", 3),
    Sketcher.Constraint("PointOnObject", 0, 2, -2),
    Sketcher.Constraint("DistanceX", 1, 1, 1, 2, Q("250 mm")),
    Sketcher.Constraint("DistanceY", 0, 2, 0, 1, Q("60 mm")),
    Sketcher.Constraint("DistanceY", -1, 1, 0, 2, Q("15 mm")),
])
pocket6 = body.newObject("PartDesign::Pocket", "Pocket005")
pocket6.Profile = sketch10
pocket6.Length = 0.1
pocket6.Reversed = True

# Sketch on XY plane
sketch11 = body.newObject("Sketcher::SketchObject", "Sketch010")
sketch11.AttachmentSupport = (doc.getObject("XY_Plane"), [""])
sketch11.MapMode = "FlatFace"
sketch11.AttachmentOffset = App.Placement(V(0, 0, -60.1), App.Rotation())
add_polygon(sketch11, [(0, 75), (0, 15), (250, 15), (250, 75)])  # lines 0-3
sketch11.addConstraint([
    Sketcher.Constraint("Vertical", 0),
    Sketcher.Constraint("Horizontal", 1),
    Sketcher.Constraint("Vertical", 2),
    Sketcher.Constraint("Horizontal", 3),
    Sketcher.Constraint("PointOnObject", 0, 2, -2),
    Sketcher.Constraint("DistanceX", 1, 1, 1, 2, Q("250 mm")),
    Sketcher.Constraint("DistanceY", 0, 2, 0, 1, Q("60 mm")),
    Sketcher.Constraint("DistanceY", -1, 1, 0, 2, Q("15 mm")),
])
pocket7 = body.newObject("PartDesign::Pocket", "Pocket006")
pocket7.Profile = sketch11
pocket7.Length = 0.1
pocket7.Reversed = True

doc.recompute()
